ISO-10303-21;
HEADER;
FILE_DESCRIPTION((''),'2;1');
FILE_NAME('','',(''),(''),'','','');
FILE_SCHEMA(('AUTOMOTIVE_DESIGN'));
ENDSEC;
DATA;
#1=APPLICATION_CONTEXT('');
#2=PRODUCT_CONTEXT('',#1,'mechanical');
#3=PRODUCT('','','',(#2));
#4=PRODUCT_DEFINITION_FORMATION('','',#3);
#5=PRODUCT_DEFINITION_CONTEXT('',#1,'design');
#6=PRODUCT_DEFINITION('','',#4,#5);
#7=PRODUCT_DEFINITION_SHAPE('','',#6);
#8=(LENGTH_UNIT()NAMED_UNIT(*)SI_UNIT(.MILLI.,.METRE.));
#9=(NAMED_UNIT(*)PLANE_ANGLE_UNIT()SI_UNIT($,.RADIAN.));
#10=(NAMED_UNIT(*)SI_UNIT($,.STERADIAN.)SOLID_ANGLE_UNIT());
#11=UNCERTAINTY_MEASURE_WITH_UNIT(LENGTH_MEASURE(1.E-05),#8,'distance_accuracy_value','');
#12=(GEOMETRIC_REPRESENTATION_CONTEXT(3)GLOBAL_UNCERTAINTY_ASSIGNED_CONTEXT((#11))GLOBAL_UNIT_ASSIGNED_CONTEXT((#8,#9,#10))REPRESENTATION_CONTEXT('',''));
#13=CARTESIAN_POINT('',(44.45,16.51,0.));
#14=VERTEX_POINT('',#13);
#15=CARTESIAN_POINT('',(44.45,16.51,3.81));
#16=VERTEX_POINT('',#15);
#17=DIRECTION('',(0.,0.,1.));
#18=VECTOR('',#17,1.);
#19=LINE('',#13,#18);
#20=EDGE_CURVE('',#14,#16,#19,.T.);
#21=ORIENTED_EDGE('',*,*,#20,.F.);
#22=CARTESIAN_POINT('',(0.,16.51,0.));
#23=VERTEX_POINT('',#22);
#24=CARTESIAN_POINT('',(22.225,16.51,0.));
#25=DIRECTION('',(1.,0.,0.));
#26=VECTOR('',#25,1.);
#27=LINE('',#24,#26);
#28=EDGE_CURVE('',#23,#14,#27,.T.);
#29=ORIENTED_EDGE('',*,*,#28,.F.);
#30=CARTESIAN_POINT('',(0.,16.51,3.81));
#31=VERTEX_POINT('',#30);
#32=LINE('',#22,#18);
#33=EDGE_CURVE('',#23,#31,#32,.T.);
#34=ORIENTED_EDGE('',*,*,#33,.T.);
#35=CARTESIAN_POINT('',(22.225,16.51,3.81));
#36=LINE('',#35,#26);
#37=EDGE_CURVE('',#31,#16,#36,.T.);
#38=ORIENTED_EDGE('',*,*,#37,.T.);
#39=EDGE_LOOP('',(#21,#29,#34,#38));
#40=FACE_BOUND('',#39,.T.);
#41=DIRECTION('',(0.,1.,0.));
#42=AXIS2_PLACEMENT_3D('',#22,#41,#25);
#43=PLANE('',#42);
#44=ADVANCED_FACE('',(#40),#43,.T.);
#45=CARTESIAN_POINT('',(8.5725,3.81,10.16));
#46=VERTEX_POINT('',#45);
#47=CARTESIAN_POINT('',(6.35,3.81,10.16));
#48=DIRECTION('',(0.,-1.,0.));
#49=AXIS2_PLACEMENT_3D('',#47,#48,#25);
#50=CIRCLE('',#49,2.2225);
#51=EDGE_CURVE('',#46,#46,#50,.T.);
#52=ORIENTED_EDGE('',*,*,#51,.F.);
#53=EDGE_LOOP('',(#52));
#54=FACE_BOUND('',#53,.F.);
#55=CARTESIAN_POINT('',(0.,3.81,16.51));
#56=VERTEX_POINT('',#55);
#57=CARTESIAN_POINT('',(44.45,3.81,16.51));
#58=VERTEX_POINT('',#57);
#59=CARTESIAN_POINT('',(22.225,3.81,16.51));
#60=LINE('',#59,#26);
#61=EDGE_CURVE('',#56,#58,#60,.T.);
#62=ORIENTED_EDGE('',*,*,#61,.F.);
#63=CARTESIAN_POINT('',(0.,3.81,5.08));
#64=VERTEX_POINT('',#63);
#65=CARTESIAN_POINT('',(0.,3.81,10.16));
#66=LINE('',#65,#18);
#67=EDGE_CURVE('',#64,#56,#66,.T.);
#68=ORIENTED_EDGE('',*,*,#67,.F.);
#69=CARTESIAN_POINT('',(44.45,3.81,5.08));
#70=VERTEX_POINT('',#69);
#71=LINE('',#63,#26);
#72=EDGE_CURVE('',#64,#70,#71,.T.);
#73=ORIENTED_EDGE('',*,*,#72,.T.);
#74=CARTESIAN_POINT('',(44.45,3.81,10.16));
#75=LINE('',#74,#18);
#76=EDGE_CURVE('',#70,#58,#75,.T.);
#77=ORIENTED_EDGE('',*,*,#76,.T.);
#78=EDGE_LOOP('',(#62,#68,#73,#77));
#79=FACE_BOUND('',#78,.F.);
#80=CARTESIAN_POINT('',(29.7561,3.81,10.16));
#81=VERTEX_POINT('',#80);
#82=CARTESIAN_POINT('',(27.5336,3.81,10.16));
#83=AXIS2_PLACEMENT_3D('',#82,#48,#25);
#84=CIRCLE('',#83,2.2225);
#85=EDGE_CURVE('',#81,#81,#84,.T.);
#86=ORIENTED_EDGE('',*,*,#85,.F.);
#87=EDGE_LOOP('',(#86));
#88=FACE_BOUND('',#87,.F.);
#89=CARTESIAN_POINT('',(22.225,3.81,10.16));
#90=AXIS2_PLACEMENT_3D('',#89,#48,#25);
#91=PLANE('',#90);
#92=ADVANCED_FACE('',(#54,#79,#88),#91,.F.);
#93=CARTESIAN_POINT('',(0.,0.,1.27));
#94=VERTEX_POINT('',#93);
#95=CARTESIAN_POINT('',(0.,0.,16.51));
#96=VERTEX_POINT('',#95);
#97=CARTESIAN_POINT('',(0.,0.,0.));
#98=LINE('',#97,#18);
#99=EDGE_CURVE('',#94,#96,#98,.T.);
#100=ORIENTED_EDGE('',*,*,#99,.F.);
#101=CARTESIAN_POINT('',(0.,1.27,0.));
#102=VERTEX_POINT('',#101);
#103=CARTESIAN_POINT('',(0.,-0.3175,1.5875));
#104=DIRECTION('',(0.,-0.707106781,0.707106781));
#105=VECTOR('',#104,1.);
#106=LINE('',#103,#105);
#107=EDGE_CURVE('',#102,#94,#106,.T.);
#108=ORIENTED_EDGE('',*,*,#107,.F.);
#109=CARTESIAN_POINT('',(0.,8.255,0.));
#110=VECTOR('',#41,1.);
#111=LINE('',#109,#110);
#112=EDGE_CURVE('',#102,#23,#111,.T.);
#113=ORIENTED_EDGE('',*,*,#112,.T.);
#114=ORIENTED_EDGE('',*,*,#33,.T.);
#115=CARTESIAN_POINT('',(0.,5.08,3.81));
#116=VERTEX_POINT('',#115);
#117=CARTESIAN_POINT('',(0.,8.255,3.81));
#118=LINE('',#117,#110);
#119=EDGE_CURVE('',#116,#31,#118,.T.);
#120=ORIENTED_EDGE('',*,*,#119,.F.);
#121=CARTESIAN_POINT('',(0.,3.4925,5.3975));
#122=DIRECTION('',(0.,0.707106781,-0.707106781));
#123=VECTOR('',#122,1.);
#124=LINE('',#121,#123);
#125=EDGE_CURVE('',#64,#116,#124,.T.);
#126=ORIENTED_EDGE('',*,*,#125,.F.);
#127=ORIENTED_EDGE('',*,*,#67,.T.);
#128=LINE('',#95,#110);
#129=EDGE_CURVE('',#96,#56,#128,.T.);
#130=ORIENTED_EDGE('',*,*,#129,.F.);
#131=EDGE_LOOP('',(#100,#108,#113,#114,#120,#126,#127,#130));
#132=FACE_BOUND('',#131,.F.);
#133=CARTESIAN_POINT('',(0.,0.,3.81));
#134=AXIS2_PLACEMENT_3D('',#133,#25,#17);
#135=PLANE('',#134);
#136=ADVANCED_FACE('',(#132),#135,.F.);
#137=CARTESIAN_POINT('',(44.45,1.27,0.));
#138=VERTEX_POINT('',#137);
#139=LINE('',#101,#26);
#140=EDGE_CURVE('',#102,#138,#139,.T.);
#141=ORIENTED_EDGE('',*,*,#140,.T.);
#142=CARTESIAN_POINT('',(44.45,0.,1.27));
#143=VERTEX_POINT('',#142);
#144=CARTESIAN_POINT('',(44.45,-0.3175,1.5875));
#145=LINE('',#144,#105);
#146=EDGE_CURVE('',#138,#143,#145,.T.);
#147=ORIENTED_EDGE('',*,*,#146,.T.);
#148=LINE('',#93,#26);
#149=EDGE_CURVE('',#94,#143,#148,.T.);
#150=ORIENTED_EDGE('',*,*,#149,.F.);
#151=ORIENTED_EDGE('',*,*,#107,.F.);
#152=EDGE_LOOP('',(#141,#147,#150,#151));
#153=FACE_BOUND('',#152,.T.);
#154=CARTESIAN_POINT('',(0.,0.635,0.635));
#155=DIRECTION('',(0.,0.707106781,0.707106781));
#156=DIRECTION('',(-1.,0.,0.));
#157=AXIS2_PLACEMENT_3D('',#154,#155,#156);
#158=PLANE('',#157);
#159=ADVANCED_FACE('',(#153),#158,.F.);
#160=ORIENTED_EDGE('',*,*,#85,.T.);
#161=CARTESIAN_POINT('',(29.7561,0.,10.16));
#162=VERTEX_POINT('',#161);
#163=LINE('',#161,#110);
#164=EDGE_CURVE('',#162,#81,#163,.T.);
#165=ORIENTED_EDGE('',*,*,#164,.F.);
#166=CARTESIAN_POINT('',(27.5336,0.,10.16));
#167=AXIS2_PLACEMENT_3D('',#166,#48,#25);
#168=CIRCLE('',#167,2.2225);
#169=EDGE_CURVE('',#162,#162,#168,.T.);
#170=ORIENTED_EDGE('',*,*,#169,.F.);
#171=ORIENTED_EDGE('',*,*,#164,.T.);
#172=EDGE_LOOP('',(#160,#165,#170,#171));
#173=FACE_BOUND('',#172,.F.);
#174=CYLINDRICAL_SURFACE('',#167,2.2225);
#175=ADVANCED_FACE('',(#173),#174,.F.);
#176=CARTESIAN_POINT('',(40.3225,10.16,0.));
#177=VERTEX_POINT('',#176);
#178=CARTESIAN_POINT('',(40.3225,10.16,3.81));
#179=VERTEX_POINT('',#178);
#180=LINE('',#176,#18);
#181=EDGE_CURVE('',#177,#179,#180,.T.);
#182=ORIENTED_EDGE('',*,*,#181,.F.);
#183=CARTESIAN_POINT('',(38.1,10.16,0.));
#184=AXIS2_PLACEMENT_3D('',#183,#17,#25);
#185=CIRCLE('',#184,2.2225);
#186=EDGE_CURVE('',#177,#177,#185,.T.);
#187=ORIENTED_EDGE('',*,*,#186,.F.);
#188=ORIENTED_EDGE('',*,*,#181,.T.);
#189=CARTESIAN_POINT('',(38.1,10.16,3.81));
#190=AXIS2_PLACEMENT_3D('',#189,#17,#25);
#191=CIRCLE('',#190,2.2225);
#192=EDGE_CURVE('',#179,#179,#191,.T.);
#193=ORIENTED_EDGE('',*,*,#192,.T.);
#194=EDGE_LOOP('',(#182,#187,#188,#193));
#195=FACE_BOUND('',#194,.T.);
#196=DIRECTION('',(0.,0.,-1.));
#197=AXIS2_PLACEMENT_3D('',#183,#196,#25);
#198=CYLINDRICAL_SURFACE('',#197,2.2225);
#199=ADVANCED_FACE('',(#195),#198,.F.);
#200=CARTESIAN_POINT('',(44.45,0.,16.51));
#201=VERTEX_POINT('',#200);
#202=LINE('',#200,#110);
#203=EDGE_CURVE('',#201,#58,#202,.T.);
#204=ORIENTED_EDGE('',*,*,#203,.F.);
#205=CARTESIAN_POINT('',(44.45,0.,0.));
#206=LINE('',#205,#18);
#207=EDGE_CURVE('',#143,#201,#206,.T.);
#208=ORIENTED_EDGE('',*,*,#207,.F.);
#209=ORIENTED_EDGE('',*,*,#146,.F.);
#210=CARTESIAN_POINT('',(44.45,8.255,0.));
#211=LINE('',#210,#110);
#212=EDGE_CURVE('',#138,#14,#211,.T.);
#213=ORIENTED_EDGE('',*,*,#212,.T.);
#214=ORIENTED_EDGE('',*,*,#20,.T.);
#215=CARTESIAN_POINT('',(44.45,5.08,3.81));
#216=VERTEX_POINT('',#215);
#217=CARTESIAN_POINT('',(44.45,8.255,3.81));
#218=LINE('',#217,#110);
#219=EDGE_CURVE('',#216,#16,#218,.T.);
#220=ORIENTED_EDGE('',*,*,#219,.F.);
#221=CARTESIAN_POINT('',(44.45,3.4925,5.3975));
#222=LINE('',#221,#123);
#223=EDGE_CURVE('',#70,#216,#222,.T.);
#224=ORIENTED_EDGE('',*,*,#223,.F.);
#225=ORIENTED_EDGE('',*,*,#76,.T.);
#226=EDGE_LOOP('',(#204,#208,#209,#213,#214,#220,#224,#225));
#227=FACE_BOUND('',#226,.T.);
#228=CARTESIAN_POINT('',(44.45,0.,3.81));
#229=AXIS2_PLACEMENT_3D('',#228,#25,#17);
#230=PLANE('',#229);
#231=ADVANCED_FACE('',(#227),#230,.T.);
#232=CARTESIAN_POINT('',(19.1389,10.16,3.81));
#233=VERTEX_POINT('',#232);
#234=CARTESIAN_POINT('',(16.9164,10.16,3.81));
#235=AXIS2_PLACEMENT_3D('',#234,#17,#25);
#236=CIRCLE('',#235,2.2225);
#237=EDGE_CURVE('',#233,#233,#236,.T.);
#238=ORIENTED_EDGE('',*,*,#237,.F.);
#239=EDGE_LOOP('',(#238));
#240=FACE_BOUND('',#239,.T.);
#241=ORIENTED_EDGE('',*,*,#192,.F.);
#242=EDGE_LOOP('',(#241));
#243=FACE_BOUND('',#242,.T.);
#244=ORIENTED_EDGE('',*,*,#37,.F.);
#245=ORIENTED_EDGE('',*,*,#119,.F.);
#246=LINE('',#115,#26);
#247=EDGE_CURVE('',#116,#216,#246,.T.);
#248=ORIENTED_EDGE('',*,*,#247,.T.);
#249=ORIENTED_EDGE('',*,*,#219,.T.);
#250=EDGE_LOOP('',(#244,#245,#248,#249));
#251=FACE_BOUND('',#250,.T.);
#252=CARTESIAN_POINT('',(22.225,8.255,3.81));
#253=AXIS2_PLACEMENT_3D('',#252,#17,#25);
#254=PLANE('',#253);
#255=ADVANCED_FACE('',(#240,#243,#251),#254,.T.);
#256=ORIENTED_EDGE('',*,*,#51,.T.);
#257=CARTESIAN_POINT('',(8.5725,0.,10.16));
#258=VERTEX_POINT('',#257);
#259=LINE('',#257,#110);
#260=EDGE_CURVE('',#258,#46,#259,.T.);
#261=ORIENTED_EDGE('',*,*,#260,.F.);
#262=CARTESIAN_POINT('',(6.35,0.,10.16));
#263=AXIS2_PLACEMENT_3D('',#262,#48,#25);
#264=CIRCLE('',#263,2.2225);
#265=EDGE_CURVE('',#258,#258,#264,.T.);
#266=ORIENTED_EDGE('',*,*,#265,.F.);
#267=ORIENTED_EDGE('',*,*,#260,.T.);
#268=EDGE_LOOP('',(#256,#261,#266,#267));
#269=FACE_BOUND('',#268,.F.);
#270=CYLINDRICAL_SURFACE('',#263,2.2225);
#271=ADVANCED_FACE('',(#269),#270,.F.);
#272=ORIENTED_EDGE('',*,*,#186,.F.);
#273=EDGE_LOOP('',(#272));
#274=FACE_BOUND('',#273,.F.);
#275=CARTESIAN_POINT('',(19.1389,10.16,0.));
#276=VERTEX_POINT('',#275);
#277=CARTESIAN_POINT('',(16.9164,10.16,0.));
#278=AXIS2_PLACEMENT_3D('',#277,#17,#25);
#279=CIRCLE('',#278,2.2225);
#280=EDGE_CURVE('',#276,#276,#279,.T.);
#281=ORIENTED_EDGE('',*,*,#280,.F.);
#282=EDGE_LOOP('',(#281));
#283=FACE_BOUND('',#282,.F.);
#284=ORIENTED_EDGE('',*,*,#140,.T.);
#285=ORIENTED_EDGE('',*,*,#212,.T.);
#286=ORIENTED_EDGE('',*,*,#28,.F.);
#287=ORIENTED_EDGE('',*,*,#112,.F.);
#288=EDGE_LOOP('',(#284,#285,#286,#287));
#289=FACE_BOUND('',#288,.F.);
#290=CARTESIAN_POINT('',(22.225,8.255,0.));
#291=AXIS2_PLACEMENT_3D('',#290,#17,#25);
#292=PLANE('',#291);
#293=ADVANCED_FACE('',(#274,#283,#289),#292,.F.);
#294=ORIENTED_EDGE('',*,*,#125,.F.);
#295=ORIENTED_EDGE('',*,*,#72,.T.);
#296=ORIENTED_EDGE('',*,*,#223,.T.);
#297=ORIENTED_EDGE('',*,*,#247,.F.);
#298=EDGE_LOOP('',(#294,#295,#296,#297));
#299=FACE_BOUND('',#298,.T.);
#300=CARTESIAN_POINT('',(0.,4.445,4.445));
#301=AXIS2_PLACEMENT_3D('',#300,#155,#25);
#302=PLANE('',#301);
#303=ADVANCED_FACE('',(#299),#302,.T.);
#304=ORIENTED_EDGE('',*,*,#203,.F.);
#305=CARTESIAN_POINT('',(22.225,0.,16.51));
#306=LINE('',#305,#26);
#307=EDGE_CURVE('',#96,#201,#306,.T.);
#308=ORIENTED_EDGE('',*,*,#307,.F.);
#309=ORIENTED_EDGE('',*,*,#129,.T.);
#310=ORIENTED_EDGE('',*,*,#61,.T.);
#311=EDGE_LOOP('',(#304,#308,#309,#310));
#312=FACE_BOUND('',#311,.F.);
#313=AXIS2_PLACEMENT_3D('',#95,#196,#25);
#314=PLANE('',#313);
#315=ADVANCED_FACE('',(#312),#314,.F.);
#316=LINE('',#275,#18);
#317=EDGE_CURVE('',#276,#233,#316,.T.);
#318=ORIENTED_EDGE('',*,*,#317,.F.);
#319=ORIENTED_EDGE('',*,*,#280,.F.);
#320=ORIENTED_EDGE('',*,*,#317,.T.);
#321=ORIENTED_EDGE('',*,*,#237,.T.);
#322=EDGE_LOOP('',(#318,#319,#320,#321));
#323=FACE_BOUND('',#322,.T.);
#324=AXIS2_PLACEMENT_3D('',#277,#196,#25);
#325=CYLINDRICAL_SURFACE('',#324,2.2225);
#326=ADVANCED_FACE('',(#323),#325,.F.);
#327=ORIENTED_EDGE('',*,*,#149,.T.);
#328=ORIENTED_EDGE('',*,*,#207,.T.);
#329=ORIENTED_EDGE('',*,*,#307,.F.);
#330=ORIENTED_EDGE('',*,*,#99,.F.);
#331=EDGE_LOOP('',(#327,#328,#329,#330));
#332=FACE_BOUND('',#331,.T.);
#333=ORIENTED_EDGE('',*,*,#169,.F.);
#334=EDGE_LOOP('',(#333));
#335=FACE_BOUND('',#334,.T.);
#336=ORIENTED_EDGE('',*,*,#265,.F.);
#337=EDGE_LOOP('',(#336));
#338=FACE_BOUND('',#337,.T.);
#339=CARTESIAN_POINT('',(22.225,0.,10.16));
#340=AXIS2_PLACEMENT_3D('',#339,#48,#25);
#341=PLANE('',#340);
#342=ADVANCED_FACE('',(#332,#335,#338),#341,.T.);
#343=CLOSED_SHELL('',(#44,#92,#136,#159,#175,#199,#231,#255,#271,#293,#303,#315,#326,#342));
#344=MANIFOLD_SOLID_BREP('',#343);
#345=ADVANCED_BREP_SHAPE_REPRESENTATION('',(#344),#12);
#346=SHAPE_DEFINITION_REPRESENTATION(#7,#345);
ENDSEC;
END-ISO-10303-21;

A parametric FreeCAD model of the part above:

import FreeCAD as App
import Part
import Sketcher
Q = App.Units.Quantity


def edges_at(feature, points):
    """Names of the edges that pass closest to the given points."""
    edges = feature.Shape.Edges
    near = lambda p: min(range(len(edges)), key=lambda i: edges[i].distToShape(Part.Vertex(*p))[0])
    return sorted({f"Edge{near(p) + 1}" for p in points})


def add_polygon(sketch, points):
    """Adds a closed chain of lines whose ends are joined by coincident constraints."""
    first, n = sketch.GeometryCount, len(points)
    for a, b in zip(points, points[1:] + points[:1]):
        sketch.addGeometry(Part.LineSegment(App.Vector(*a, 0), App.Vector(*b, 0)), False)
    for i in range(n):
        sketch.addConstraint(Sketcher.Constraint("Coincident", first + i, 2, first + (i + 1) % n, 1))

doc = App.newDocument("Part")
body = doc.addObject("PartDesign::Body", "Body")

# Sketch on XY plane
sketch1 = body.newObject("Sketcher::SketchObject", "Sketch")
sketch1.AttachmentSupport = (doc.getObject("XY_Plane"), [""])
sketch1.MapMode = "FlatFace"
add_polygon(sketch1, [(0, 16.51), (0, 0), (44.45, 0), (44.45, 16.51)])  # lines 0-3
sketch1.addGeometry(Part.Circle(App.Vector(16.9164, 10.16, 0), App.Vector(0, 0, 1), 2.2225), False)  # 4
sketch1.addGeometry(Part.Circle(App.Vector(38.1, 10.16, 0), App.Vector(0, 0, 1), 2.2225), False)  # 5
sketch1.addConstraint(Sketcher.Constraint("Vertical", 0))
sketch1.addConstraint(Sketcher.Constraint("Horizontal", 1))
sketch1.addConstraint(Sketcher.Constraint("Vertical", 2))
sketch1.addConstraint(Sketcher.Constraint("Horizontal", 3))
sketch1.addConstraint(Sketcher.Constraint("Coincident", 0, 2, -1, 1))
sketch1.addConstraint(Sketcher.Constraint("Equal", 4, 5))
sketch1.addConstraint(Sketcher.Constraint("Horizontal", 4, 3, 5, 3))
sketch1.addConstraint(Sketcher.Constraint("Diameter", 4, Q("0.175 in")))
sketch1.addConstraint(Sketcher.Constraint("DistanceX", 1, 1, 1, 2, Q("1.75 in")))
sketch1.addConstraint(Sketcher.Constraint("DistanceY", 0, 2, 0, 1, Q("0.65 in")))
sketch1.addConstraint(Sketcher.Constraint("DistanceY", -1, 1, 4, 3, Q("0.4 in")))
sketch1.addConstraint(Sketcher.Constraint("DistanceX", -1, 1, 5, 3, Q("1.5 in")))
sketch1.addConstraint(Sketcher.Constraint("DistanceX", -1, 1, 4, 3, Q("0.666 in")))
pad1 = body.newObject("PartDesign::Pad", "Pad")
pad1.Profile = sketch1
pad1.Length = Q("0.15 in")

# Sketch on XZ plane
sketch2 = body.newObject("Sketcher::SketchObject", "Sketch001")
sketch2.AttachmentSupport = (doc.getObject("XZ_Plane"), [""])
sketch2.MapMode = "FlatFace"
add_polygon(sketch2, [(0, 16.51), (0, 3.81), (44.45, 3.81), (44.45, 16.51)])  # lines 0-3
sketch2.addGeometry(Part.Circle(App.Vector(6.35, 10.16, 0), App.Vector(0, 0, 1), 2.2225), False)  # 4
sketch2.addGeometry(Part.Circle(App.Vector(27.5336, 10.16, 0), App.Vector(0, 0, 1), 2.2225), False)  # 5
sketch2.addConstraint(Sketcher.Constraint("Vertical", 0))
sketch2.addConstraint(Sketcher.Constraint("Horizontal", 1))
sketch2.addConstraint(Sketcher.Constraint("Vertical", 2))
sketch2.addConstraint(Sketcher.Constraint("Horizontal", 3))
sketch2.addConstraint(Sketcher.Constraint("Equal", 4, 5))
sketch2.addConstraint(Sketcher.Constraint("PointOnObject", 0, 2, -2))
sketch2.addConstraint(Sketcher.Constraint("Horizontal", 4, 3, 5, 3))
sketch2.addConstraint(Sketcher.Constraint("Diameter", 4, Q("0.175 in")))
sketch2.addConstraint(Sketcher.Constraint("DistanceY", 0, 2, 0, 1, Q("0.5 in")))
sketch2.addConstraint(Sketcher.Constraint("DistanceX", 1, 1, 1, 2, Q("1.75 in")))
sketch2.addConstraint(Sketcher.Constraint("DistanceY", -1, 1, 4, 3, Q("0.4 in")))
sketch2.addConstraint(Sketcher.Constraint("DistanceX", 4, 3, 1, 2, Q("1.5 in")))
sketch2.addConstraint(Sketcher.Constraint("DistanceY", -1, 1, 0, 2, Q("0.15 in")))
sketch2.addConstraint(Sketcher.Constraint("DistanceX", -1, 1, 5, 3, Q("1.084 in")))
pad2 = body.newObject("PartDesign::Pad", "Pad001")
pad2.Profile = sketch2
pad2.Length = Q("0.15 in")
pad2.Reversed = True
doc.recompute()

chamfer = body.newObject("PartDesign::Chamfer", "Chamfer")
chamfer.Base = (pad2, edges_at(pad2, [(22.225, 0, 0)]))
chamfer.Size = Q("0.05 in")
doc.recompute()

chamfer2 = body.newObject("PartDesign::Chamfer", "Chamfer001")
chamfer2.Base = (chamfer, edges_at(chamfer, [(22.225, 3.81, 3.81)]))
chamfer2.Size = Q("0.05 in")

doc.recompute()
